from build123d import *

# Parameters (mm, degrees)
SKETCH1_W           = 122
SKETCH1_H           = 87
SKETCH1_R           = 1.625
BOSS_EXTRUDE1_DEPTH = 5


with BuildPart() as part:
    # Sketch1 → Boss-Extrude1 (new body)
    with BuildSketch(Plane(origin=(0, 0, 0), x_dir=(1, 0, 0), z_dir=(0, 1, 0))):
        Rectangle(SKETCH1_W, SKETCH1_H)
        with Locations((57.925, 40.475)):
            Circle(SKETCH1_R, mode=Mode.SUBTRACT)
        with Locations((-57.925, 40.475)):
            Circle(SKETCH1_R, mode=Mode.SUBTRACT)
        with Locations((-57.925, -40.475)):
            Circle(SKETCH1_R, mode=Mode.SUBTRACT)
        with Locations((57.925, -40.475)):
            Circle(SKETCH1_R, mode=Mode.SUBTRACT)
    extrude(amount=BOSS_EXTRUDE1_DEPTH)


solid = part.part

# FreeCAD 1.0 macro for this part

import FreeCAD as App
import Part
import Sketcher
from FreeCAD import Vector
Q = App.Units.Quantity

doc = App.newDocument("Part")
body = doc.addObject("PartDesign::Body", "Body")

# Sketch on XZ plane
sketch1 = doc.addObject("Sketcher::SketchObject", "Sketch")
body.addObject(sketch1)
sketch1.AttachmentSupport = (doc.XZ_Plane, [""])
sketch1.MapMode = "FlatFace"
sketch1.addGeometry([
    Part.LineSegment(Vector(-61, -43.5, 0), Vector(-61, 43.5, 0)),  # 0
    Part.LineSegment(Vector(-61, 43.5, 0), Vector(61, 43.5, 0)),  # 1
    Part.LineSegment(Vector(61, 43.5, 0), Vector(61, -43.5, 0)),  # 2
    Part.LineSegment(Vector(61, -43.5, 0), Vector(-61, -43.5, 0)),  # 3
    Part.Circle(Vector(-57.9, 40.5, 0), Vector(0, 0, 1), 1.6),  # 4
    Part.Circle(Vector(57.9, 40.5, 0), Vector(0, 0, 1), 1.6),  # 5
    Part.Circle(Vector(-57.9, -40.5, 0), Vector(0, 0, 1), 1.6),  # 6
    Part.Circle(Vector(57.9, -40.5, 0), Vector(0, 0, 1), 1.6),  # 7
], False)
sketch1.addConstraint([
    Sketcher.Constraint("Coincident", 0, 2, 1, 1),
    Sketcher.Constraint("Coincident", 1, 2, 2, 1),
    Sketcher.Constraint("Coincident", 2, 2, 3, 1),
    Sketcher.Constraint("Coincident", 3, 2, 0, 1),
    Sketcher.Constraint("Vertical", 0),
    Sketcher.Constraint("Horizontal", 1),
    Sketcher.Constraint("Vertical", 2),
    Sketcher.Constraint("Horizontal", 3),
    Sketcher.Constraint("Equal", 4, 5),
    Sketcher.Constraint("Equal", 5, 6),
    Sketcher.Constraint("Equal", 6, 7),
    Sketcher.Constraint("Symmetric", 5, 3, 6, 3, -1, 1),
    Sketcher.Constraint("Symmetric", 4, 3, 7, 3, -1, 1),
    Sketcher.Constraint("Symmetric", 0, 2, 2, 2, -1, 1),
    Sketcher.Constraint("Symmetric", 4, 3, 5, 3, -2),
    Sketcher.Constraint("Diameter", 4, Q("3.25 mm")),
    Sketcher.Constraint("DistanceX", 1, 1, 1, 2, Q("122 mm")),
    Sketcher.Constraint("DistanceY", 0, 1, 0, 2, Q("87 mm")),
    Sketcher.Constraint("DistanceX", 4, 3, 5, 3, Q("115.85 mm")),
    Sketcher.Constraint("DistanceY", 6, 3, 4, 3, Q("80.95 mm")),
])
pad1 = doc.addObject("PartDesign::Pad", "Pad")
body.addObject(pad1)
pad1.Profile = sketch1
pad1.Length = 5
pad1.Reversed = True

doc.recompute()
